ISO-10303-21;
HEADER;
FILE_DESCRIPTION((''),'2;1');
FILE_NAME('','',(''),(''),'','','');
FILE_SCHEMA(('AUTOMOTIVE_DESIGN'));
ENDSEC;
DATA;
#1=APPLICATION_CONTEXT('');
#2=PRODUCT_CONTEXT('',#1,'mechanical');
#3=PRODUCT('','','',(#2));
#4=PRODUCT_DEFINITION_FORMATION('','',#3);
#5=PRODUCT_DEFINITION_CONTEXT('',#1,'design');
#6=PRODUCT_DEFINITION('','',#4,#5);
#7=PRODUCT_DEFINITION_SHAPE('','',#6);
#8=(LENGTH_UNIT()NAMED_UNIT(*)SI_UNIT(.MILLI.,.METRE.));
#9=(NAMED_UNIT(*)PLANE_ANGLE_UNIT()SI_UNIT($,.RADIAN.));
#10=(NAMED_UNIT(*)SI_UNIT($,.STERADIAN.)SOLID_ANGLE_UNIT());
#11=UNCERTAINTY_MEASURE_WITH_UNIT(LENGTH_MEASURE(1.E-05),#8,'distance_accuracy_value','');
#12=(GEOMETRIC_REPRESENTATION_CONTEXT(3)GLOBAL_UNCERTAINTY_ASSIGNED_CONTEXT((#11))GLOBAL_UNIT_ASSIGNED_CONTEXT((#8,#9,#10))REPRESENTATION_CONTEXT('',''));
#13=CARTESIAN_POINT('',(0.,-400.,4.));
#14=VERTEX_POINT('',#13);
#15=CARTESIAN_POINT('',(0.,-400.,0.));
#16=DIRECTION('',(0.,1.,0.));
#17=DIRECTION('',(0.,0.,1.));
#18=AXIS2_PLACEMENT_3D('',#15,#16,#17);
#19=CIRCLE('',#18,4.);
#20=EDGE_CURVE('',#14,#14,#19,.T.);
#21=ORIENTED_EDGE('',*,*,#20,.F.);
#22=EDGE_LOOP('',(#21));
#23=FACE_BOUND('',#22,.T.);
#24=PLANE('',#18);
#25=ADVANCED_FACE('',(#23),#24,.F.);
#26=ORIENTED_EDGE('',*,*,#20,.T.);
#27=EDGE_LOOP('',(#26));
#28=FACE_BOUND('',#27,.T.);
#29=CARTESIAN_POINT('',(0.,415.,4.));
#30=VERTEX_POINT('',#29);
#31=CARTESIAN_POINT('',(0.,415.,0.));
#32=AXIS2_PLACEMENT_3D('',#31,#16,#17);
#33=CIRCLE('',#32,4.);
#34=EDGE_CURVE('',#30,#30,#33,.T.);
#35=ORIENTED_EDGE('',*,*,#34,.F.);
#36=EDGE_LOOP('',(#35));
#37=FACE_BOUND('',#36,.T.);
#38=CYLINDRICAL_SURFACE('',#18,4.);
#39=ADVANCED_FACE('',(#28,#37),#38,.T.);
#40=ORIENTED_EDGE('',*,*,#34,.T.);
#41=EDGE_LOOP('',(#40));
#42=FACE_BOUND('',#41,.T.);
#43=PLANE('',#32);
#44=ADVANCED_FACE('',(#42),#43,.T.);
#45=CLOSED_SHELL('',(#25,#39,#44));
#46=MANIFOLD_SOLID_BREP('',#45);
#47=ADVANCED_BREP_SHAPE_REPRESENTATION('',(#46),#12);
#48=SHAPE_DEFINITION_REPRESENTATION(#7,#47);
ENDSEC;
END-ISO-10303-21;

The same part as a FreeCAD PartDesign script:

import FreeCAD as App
import Part
import Sketcher

doc = App.newDocument("Part")
body = doc.addObject("PartDesign::Body", "Body")

# Sketch on XZ plane
sketch1 = body.newObject("Sketcher::SketchObject", "Sketch")
sketch1.AttachmentSupport = (doc.getObject("XZ_Plane"), [""])
sketch1.MapMode = "FlatFace"
sketch1.addGeometry(Part.Circle(App.Vector(0, 0, 0), App.Vector(0, 0, 1), 4), False)
sketch1.addConstraint([
    Sketcher.Constraint("Coincident", 0, 3, -1, 1),
    Sketcher.Constraint("Diameter", 0, 8.0),
])
pad1 = body.newObject("PartDesign::Pad", "Pad")
pad1.Profile = sketch1
pad1.Type = "TwoLengths"
pad1.Length = 415
pad1.Length2 = 400
pad1.Reversed = True

doc.recompute()
